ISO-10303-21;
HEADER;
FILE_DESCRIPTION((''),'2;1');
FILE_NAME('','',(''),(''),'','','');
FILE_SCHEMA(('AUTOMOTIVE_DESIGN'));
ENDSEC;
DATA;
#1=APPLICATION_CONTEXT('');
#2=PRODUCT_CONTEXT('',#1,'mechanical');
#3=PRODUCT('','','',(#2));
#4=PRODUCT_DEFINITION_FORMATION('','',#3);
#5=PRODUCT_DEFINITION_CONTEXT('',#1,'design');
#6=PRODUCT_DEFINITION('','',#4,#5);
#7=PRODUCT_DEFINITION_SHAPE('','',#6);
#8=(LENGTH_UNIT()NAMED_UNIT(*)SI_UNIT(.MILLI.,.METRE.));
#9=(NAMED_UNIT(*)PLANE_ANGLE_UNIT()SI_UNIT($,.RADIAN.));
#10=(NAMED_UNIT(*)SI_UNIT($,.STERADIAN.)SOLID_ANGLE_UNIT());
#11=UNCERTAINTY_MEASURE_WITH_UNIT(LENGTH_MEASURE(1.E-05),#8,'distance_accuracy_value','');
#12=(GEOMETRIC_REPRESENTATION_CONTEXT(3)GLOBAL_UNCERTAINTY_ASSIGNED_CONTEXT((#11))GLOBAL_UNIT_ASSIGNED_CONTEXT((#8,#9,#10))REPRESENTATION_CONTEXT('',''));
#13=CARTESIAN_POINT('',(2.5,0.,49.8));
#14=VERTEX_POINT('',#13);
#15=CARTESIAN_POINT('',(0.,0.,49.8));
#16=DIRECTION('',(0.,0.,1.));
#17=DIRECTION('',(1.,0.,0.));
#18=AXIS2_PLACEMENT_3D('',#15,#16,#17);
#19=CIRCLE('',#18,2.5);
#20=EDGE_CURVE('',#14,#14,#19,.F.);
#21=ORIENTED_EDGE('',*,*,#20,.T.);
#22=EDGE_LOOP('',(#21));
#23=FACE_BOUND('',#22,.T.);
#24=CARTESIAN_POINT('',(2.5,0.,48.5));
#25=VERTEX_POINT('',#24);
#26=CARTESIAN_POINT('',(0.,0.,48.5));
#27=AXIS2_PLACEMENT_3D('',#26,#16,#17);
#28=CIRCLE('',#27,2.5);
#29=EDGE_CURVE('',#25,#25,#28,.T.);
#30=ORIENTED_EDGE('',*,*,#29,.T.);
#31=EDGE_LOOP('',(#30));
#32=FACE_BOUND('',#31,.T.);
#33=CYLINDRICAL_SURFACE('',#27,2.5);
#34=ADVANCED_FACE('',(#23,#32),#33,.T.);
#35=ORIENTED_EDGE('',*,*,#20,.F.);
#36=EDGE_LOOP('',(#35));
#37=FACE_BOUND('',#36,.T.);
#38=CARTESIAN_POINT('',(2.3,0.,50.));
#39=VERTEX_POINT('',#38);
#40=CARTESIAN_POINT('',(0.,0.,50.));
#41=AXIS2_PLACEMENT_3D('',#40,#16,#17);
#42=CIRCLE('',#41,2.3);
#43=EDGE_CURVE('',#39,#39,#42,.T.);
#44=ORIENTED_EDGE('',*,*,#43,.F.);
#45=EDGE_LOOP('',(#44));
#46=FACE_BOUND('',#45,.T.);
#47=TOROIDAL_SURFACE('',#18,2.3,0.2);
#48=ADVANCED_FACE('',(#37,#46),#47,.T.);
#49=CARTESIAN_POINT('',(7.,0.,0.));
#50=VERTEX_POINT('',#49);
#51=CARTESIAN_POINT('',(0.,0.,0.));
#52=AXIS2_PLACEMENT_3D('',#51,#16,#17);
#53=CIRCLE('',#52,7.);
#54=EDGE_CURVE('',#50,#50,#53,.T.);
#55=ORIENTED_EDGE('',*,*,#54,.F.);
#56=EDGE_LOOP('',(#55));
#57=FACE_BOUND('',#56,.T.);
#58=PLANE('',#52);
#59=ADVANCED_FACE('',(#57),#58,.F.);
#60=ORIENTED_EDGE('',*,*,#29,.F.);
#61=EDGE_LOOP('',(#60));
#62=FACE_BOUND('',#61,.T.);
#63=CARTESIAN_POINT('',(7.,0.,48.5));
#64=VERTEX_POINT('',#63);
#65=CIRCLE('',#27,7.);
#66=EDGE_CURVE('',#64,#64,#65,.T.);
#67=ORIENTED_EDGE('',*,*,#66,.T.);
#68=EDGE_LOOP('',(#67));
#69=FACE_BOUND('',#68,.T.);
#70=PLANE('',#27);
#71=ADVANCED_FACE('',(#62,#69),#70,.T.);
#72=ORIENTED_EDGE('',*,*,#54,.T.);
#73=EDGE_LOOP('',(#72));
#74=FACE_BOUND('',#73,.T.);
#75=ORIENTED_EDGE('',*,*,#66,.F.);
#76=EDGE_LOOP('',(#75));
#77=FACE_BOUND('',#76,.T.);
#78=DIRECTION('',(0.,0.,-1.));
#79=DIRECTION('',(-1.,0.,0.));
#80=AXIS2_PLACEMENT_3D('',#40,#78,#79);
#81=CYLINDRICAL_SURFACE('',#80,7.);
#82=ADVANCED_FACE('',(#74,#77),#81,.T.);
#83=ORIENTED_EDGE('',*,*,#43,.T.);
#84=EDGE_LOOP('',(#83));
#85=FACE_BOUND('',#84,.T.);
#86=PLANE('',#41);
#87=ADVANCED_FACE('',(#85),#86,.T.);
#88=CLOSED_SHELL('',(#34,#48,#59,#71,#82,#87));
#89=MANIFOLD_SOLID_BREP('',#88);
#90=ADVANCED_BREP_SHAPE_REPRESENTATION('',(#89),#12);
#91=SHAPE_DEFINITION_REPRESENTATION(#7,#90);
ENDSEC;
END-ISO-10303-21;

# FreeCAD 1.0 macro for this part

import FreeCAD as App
import Part
import Sketcher


def edges_at(feature, points):
    """Names of the edges that pass closest to the given points."""
    edges = feature.Shape.Edges
    near = lambda p: min(range(len(edges)), key=lambda i: edges[i].distToShape(Part.Vertex(*p))[0])
    return sorted({f"Edge{near(p) + 1}" for p in points})

doc = App.newDocument("Part")
params = doc.addObject("Spreadsheet::Sheet", "Params")
for row, (alias, value) in enumerate([
    ("sketch1_diameter", "14 mm"),
    ("pad1_length", "50 mm"),
    ("sketch2_diameter", "14 mm"),
    ("sketch2_diameter2", "5 mm"),
    ("pocket1_length", "1.5 mm"),
    ("fillet_radius", "0.2 mm"),
], start=1):
    params.set(f"A{row}", alias)
    params.set(f"B{row}", "=" + value)
    params.setAlias(f"B{row}", alias)

body = doc.addObject("PartDesign::Body", "Body")

# Sketch on XY plane
sketch1 = body.newObject("Sketcher::SketchObject", "Sketch")
sketch1.AttachmentSupport = (doc.getObject("XY_Plane"), [""])
sketch1.MapMode = "FlatFace"
sketch1.addGeometry(Part.Circle(App.Vector(0, 0, 0), App.Vector(0, 0, 1), 7), False)
sketch1.addConstraint([
    Sketcher.Constraint("Coincident", 0, 3, -1, 1),
    Sketcher.Constraint("Diameter", 0, 14.0),
])
sketch1.setExpression("Constraints[1]", "Params.sketch1_diameter")
pad1 = body.newObject("PartDesign::Pad", "Pad")
pad1.Profile = sketch1
pad1.setExpression("Length", "Params.pad1_length")

# Sketch on XY plane
sketch2 = body.newObject("Sketcher::SketchObject", "Sketch001")
sketch2.AttachmentSupport = (doc.getObject("XY_Plane"), [""])
sketch2.MapMode = "FlatFace"
sketch2.AttachmentOffset = App.Placement(App.Vector(0, 0, 48.5), App.Rotation())
sketch2.addGeometry([
    Part.Circle(App.Vector(0, 0, 0), App.Vector(0, 0, 1), 7),
    Part.Circle(App.Vector(0, 0, 0), App.Vector(0, 0, 1), 2.5),
], False)
sketch2.addConstraint([
    Sketcher.Constraint("Coincident", 0, 3, -1, 1),
    Sketcher.Constraint("Coincident", 1, 3, -1, 1),
    Sketcher.Constraint("Diameter", 0, 14.0),
    Sketcher.Constraint("Diameter", 1, 5.0),
])
sketch2.setExpression("Constraints[2]", "Params.sketch2_diameter")
sketch2.setExpression("Constraints[3]", "Params.sketch2_diameter2")
pocket1 = body.newObject("PartDesign::Pocket", "Pocket")
pocket1.Profile = sketch2
pocket1.setExpression("Length", "Params.pocket1_length")
pocket1.Reversed = True
doc.recompute()

fillet = body.newObject("PartDesign::Fillet", "Fillet")
fillet.Base = (pocket1, edges_at(pocket1, [(-2.5, 0, 50)]))
fillet.setExpression("Radius", "Params.fillet_radius")

doc.recompute()
